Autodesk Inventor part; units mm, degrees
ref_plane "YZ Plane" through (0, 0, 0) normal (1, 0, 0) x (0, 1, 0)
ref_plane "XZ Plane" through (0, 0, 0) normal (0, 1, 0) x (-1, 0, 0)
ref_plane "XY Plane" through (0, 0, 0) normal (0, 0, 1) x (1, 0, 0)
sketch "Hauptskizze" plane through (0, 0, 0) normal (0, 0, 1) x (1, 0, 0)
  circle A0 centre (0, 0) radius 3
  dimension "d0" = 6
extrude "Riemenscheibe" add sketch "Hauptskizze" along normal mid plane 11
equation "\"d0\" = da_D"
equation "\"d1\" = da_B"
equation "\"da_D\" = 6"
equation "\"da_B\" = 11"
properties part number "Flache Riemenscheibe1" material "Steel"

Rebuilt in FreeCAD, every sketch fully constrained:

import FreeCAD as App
import Part
import Sketcher
from FreeCAD import Vector

doc = App.newDocument("Part")
body = doc.addObject("PartDesign::Body", "Body")

sketch1 = body.newObject("Sketcher::SketchObject", "Sketch")
sketch1.AttachmentSupport = (doc.getObject("XY_Plane"), [""])
sketch1.MapMode = "FlatFace"
sketch1.addGeometry(Part.Circle(Vector(0, 0, 0), Vector(0, 0, 1), 3), False)
sketch1.addConstraint(Sketcher.Constraint("Coincident", 0, 3, -1, 1))
sketch1.addConstraint(Sketcher.Constraint("Diameter", 0, 6.0))
pad1 = body.newObject("PartDesign::Pad", "Pad")
pad1.Profile = sketch1
pad1.Length = 11
pad1.Midplane = True

doc.recompute()
